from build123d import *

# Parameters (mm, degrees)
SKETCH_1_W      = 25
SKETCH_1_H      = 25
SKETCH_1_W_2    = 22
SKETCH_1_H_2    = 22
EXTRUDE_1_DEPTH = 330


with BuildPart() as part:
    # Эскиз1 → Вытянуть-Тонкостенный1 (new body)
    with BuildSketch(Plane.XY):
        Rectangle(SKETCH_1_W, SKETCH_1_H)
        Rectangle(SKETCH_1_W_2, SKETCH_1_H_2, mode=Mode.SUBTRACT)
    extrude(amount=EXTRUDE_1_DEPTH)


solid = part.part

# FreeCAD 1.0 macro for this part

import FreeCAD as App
import Part
import Sketcher
Q = App.Units.Quantity

doc = App.newDocument("Part")
params = doc.addObject("Spreadsheet::Sheet", "Params")
for row, (alias, value) in enumerate([
    ("sketch1_width", "25 mm"),
    ("sketch1_width2", "22 mm"),
    ("pad1_length", "330 mm"),
], start=1):
    params.set(f"A{row}", alias)
    params.set(f"B{row}", "=" + value)
    params.setAlias(f"B{row}", alias)

body = doc.addObject("PartDesign::Body", "Body")

# Sketch on XY plane
sketch1 = body.newObject("Sketcher::SketchObject", "Sketch")
sketch1.AttachmentSupport = (doc.getObject("XY_Plane"), [""])
sketch1.MapMode = "FlatFace"
sketch1.addGeometry([
    Part.LineSegment(App.Vector(-12, 12, 0), App.Vector(-12, -12, 0)),  # 0
    Part.LineSegment(App.Vector(-12, -12, 0), App.Vector(12, -12, 0)),  # 1
    Part.LineSegment(App.Vector(12, -12, 0), App.Vector(12, 12, 0)),  # 2
    Part.LineSegment(App.Vector(12, 12, 0), App.Vector(-12, 12, 0)),  # 3
    Part.LineSegment(App.Vector(11, -11, 0), App.Vector(-11, -11, 0)),  # 4
    Part.LineSegment(App.Vector(-11, -11, 0), App.Vector(-11, 11, 0)),  # 5
    Part.LineSegment(App.Vector(-11, 11, 0), App.Vector(11, 11, 0)),  # 6
    Part.LineSegment(App.Vector(11, 11, 0), App.Vector(11, -11, 0)),  # 7
], False)
sketch1.addConstraint([
    Sketcher.Constraint("Coincident", 0, 2, 1, 1),
    Sketcher.Constraint("Coincident", 1, 2, 2, 1),
    Sketcher.Constraint("Coincident", 2, 2, 3, 1),
    Sketcher.Constraint("Coincident", 3, 2, 0, 1),
    Sketcher.Constraint("Coincident", 4, 2, 5, 1),
    Sketcher.Constraint("Coincident", 5, 2, 6, 1),
    Sketcher.Constraint("Coincident", 6, 2, 7, 1),
    Sketcher.Constraint("Coincident", 7, 2, 4, 1),
    Sketcher.Constraint("Vertical", 0),
    Sketcher.Constraint("Horizontal", 1),
    Sketcher.Constraint("Vertical", 2),
    Sketcher.Constraint("Horizontal", 3),
    Sketcher.Constraint("Horizontal", 4),
    Sketcher.Constraint("Vertical", 5),
    Sketcher.Constraint("Horizontal", 6),
    Sketcher.Constraint("Vertical", 7),
    Sketcher.Constraint("Symmetric", 0, 2, 2, 2, -1, 1),
    Sketcher.Constraint("Symmetric", 4, 2, 6, 2, -1, 1),
    Sketcher.Constraint("Equal", 3, 0),
    Sketcher.Constraint("Equal", 6, 5),
    Sketcher.Constraint("DistanceX", 1, 1, 1, 2, Q("25 mm")),
    Sketcher.Constraint("DistanceX", 4, 2, 4, 1, Q("22 mm")),
])
sketch1.setExpression("Constraints[20]", "Params.sketch1_width")
sketch1.setExpression("Constraints[21]", "Params.sketch1_width2")
pad1 = body.newObject("PartDesign::Pad", "Pad")
pad1.Profile = sketch1
pad1.setExpression("Length", "Params.pad1_length")

doc.recompute()
